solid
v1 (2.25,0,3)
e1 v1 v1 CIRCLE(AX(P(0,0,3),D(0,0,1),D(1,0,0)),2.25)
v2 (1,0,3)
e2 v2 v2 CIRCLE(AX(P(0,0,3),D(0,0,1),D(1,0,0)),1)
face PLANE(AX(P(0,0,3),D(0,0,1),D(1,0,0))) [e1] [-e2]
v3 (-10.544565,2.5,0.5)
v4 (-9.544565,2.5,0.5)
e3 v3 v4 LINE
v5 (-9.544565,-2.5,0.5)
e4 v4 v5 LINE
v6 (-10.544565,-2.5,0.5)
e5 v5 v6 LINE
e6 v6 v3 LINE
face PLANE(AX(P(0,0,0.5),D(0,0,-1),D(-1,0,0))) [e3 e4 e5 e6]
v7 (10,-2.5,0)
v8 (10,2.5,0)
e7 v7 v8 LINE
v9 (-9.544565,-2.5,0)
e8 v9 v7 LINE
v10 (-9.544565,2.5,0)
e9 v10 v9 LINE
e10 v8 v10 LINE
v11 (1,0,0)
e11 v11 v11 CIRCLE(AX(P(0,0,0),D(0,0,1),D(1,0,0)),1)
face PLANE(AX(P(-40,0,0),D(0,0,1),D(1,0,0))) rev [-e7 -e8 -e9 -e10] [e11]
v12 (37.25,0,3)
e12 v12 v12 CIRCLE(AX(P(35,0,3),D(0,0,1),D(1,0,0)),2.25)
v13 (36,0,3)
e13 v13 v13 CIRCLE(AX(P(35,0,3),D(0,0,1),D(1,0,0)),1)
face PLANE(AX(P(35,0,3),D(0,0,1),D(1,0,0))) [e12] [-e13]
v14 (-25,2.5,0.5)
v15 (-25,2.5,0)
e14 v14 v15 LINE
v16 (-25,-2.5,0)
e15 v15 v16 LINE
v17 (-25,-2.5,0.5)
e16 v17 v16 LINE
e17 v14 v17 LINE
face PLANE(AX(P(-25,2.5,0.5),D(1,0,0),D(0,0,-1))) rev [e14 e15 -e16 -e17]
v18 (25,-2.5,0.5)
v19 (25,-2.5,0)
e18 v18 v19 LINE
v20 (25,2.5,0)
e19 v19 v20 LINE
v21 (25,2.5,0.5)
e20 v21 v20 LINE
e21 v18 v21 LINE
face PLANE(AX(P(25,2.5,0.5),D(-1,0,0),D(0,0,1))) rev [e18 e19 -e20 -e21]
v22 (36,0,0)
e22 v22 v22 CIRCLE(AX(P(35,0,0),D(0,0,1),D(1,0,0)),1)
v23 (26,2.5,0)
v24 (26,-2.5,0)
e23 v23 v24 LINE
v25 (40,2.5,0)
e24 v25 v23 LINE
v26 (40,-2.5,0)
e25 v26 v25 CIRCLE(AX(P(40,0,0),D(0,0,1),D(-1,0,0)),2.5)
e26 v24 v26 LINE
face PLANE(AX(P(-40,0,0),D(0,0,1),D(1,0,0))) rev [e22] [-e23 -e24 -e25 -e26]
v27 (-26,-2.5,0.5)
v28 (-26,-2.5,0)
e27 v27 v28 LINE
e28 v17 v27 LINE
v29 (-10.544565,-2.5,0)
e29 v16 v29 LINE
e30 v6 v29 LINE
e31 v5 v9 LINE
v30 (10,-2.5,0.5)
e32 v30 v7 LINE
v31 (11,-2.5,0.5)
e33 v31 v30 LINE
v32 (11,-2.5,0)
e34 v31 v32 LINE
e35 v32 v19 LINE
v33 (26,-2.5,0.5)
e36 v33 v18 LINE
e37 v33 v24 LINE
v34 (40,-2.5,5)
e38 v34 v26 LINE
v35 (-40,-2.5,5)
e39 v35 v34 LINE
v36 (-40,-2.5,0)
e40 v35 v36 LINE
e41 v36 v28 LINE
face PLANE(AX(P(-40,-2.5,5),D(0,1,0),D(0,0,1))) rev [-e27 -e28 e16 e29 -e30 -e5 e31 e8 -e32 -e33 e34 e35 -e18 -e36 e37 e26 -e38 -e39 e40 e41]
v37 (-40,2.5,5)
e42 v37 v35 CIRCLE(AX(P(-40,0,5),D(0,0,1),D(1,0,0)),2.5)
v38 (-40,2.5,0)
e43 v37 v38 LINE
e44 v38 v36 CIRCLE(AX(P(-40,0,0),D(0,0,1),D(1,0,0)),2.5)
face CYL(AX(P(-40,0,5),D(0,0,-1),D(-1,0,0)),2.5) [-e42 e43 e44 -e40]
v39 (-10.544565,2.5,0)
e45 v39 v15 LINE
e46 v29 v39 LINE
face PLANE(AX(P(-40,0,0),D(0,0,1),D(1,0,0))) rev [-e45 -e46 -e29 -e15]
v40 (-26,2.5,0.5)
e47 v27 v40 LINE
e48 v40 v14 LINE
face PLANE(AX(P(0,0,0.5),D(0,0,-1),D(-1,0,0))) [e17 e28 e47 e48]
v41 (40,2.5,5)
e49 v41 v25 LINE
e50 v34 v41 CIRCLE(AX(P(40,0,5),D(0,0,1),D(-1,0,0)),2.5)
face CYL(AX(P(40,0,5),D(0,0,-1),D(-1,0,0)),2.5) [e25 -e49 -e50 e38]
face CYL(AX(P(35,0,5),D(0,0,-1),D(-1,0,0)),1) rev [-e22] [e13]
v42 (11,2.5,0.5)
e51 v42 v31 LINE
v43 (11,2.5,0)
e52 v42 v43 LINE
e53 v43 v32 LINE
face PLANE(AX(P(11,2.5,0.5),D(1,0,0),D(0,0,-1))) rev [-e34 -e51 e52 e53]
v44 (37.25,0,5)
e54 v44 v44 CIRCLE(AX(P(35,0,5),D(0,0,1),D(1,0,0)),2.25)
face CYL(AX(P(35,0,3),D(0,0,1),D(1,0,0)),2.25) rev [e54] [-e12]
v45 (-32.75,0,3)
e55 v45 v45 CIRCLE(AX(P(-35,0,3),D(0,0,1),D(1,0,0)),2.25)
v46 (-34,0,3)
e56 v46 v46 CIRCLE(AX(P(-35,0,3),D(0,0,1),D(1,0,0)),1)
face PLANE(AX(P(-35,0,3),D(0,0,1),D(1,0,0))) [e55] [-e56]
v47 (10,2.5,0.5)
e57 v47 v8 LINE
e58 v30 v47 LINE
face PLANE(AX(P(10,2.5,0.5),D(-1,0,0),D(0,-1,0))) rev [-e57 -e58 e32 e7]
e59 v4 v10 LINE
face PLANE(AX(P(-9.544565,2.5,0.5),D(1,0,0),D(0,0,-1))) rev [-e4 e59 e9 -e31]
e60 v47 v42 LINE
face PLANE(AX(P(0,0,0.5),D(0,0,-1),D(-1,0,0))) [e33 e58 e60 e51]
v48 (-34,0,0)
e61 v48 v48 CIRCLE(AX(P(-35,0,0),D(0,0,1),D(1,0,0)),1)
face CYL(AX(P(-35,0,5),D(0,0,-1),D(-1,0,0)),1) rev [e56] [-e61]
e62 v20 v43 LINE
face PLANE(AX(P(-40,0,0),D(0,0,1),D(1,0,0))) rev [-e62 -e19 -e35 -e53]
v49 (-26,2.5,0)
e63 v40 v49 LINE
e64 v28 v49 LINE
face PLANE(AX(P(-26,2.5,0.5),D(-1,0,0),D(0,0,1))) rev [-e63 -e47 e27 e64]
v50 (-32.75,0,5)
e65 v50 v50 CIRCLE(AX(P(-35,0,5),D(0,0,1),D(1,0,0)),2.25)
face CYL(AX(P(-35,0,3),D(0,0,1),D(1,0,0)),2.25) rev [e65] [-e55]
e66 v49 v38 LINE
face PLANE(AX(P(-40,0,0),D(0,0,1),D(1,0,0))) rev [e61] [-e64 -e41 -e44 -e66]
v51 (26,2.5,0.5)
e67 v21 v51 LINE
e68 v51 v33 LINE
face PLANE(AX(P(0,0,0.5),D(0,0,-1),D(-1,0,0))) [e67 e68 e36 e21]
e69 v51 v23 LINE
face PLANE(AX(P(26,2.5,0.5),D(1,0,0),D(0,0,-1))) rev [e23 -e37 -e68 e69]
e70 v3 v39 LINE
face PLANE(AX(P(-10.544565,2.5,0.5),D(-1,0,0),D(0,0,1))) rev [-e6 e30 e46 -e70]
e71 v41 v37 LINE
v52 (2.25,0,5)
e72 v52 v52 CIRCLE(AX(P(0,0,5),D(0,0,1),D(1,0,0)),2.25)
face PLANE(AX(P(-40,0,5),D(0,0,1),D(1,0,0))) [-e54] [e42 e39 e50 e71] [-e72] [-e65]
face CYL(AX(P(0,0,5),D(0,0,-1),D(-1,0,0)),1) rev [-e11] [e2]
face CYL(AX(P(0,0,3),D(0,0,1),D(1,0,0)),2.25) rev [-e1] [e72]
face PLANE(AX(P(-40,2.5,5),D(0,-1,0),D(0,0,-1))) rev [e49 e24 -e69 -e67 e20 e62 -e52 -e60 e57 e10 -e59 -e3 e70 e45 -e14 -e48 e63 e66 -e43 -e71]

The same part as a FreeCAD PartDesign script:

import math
import FreeCAD as App
import Part
import Sketcher
from FreeCAD import Vector
Q = App.Units.Quantity


def add_polygon(sketch, points):
    """Adds a closed chain of lines whose ends are joined by coincident constraints."""
    first, n = sketch.GeometryCount, len(points)
    for a, b in zip(points, points[1:] + points[:1]):
        sketch.addGeometry(Part.LineSegment(App.Vector(*a, 0), App.Vector(*b, 0)), False)
    for i in range(n):
        sketch.addConstraint(Sketcher.Constraint("Coincident", first + i, 2, first + (i + 1) % n, 1))

doc = App.newDocument("Part")
body = doc.addObject("PartDesign::Body", "Body")

# Sketch on XY plane
sketch1 = body.newObject("Sketcher::SketchObject", "Sketch")
sketch1.AttachmentSupport = (doc.getObject("XY_Plane"), [""])
sketch1.MapMode = "FlatFace"
sketch1.addGeometry(Part.LineSegment(Vector(40, 2.5, 0), Vector(-40, 2.5, 0)), False)
sketch1.addGeometry(Part.ArcOfCircle(Part.Circle(Vector(-40, 0, 0), Vector(0, 0, 1), 2.5), math.radians(90), math.radians(270)), False)
sketch1.addGeometry(Part.LineSegment(Vector(-40, -2.5, 0), Vector(40, -2.5, 0)), False)
sketch1.addGeometry(Part.ArcOfCircle(Part.Circle(Vector(40, 0, 0), Vector(0, 0, 1), 2.5), math.radians(-90.000002), math.radians(90.000002)), False)
sketch1.addGeometry(Part.Circle(Vector(35, 0, 0), Vector(0, 0, 1), 1), False)
sketch1.addGeometry(Part.Circle(Vector(0, 0, 0), Vector(0, 0, 1), 1), False)
sketch1.addGeometry(Part.Circle(Vector(-35, 0, 0), Vector(0, 0, 1), 1), False)
sketch1.addConstraint(Sketcher.Constraint("Tangent", 0, 2, 1, 1))
sketch1.addConstraint(Sketcher.Constraint("Tangent", 1, 2, 2, 1))
sketch1.addConstraint(Sketcher.Constraint("Tangent", 2, 2, 3, 1))
sketch1.addConstraint(Sketcher.Constraint("Tangent", 3, 2, 0, 1))
sketch1.addConstraint(Sketcher.Constraint("Horizontal", 0))
sketch1.addConstraint(Sketcher.Constraint("Horizontal", 2))
sketch1.addConstraint(Sketcher.Constraint("Coincident", 5, 3, -1, 1))
sketch1.addConstraint(Sketcher.Constraint("Equal", 4, 5))
sketch1.addConstraint(Sketcher.Constraint("Equal", 5, 6))
sketch1.addConstraint(Sketcher.Constraint("Symmetric", 1, 3, 3, 3, -1, 1))
sketch1.addConstraint(Sketcher.Constraint("Symmetric", 4, 3, 6, 3, -1, 1))
sketch1.addConstraint(Sketcher.Constraint("PointOnObject", 4, 3, -1))
sketch1.addConstraint(Sketcher.Constraint("Diameter", 4, Q("2 mm")))
sketch1.addConstraint(Sketcher.Constraint("Radius", 1, Q("2.5 mm")))
sketch1.addConstraint(Sketcher.Constraint("DistanceX", 0, 2, 0, 1, Q("80 mm")))
sketch1.addConstraint(Sketcher.Constraint("DistanceX", -1, 1, 4, 3, Q("35 mm")))
pad1 = body.newObject("PartDesign::Pad", "Pad")
pad1.Profile = sketch1
pad1.Length = 5

# Sketch on XY plane
sketch2 = body.newObject("Sketcher::SketchObject", "Sketch001")
sketch2.AttachmentSupport = (doc.getObject("XY_Plane"), [""])
sketch2.MapMode = "FlatFace"
add_polygon(sketch2, [(26, 2.5), (26, -2.5), (25, -2.5), (25, 2.5)])  # lines 0-3
add_polygon(sketch2, [(11, 2.5), (11, -2.5), (10, -2.5), (10, 2.5)])  # lines 4-7
add_polygon(sketch2, [(-9.544565, 2.5), (-9.544565, -2.5), (-10.544565, -2.5), (-10.544565, 2.5)])  # lines 8-11
add_polygon(sketch2, [(-25, 2.5), (-25, -2.5), (-26, -2.5), (-26, 2.5)])  # lines 12-15
sketch2.addConstraint(Sketcher.Constraint("Vertical", 0))
sketch2.addConstraint(Sketcher.Constraint("Horizontal", 1))
sketch2.addConstraint(Sketcher.Constraint("Vertical", 2))
sketch2.addConstraint(Sketcher.Constraint("Horizontal", 3))
sketch2.addConstraint(Sketcher.Constraint("Vertical", 4))
sketch2.addConstraint(Sketcher.Constraint("Horizontal", 5))
sketch2.addConstraint(Sketcher.Constraint("Vertical", 6))
sketch2.addConstraint(Sketcher.Constraint("Horizontal", 7))
sketch2.addConstraint(Sketcher.Constraint("Vertical", 8))
sketch2.addConstraint(Sketcher.Constraint("Horizontal", 9))
sketch2.addConstraint(Sketcher.Constraint("Vertical", 10))
sketch2.addConstraint(Sketcher.Constraint("Horizontal", 11))
sketch2.addConstraint(Sketcher.Constraint("Vertical", 12))
sketch2.addConstraint(Sketcher.Constraint("Horizontal", 13))
sketch2.addConstraint(Sketcher.Constraint("Vertical", 14))
sketch2.addConstraint(Sketcher.Constraint("Horizontal", 15))
sketch2.addConstraint(Sketcher.Constraint("Symmetric", 2, 2, 12, 2, -1, 1))
sketch2.addConstraint(Sketcher.Constraint("Symmetric", 0, 2, 14, 2, -1, 1))
sketch2.addConstraint(Sketcher.Constraint("Horizontal", 1, 2, 4, 2))
sketch2.addConstraint(Sketcher.Constraint("Horizontal", 3, 2, 6, 2))
sketch2.addConstraint(Sketcher.Constraint("Horizontal", 5, 2, 8, 2))
sketch2.addConstraint(Sketcher.Constraint("Horizontal", 7, 2, 10, 2))
sketch2.addConstraint(Sketcher.Constraint("Horizontal", 9, 2, 12, 2))
sketch2.addConstraint(Sketcher.Constraint("Equal", 3, 5))
sketch2.addConstraint(Sketcher.Constraint("Equal", 7, 9))
sketch2.addConstraint(Sketcher.Constraint("DistanceX", 1, 2, 1, 1, Q("1 mm")))
sketch2.addConstraint(Sketcher.Constraint("DistanceY", 0, 2, 0, 1, Q("5 mm")))
sketch2.addConstraint(Sketcher.Constraint("DistanceX", -1, 1, 0, 2, Q("26 mm")))
sketch2.addConstraint(Sketcher.Constraint("DistanceX", -1, 1, 4, 2, Q("11 mm")))
sketch2.addConstraint(Sketcher.Constraint("DistanceX", 8, 2, -1, 1, Q("9.544565 mm")))
pocket1 = body.newObject("PartDesign::Pocket", "Pocket")
pocket1.Profile = sketch2
pocket1.Length = 0.5
pocket1.Reversed = True

# Sketch on XY plane
sketch3 = body.newObject("Sketcher::SketchObject", "Sketch002")
sketch3.AttachmentSupport = (doc.getObject("XY_Plane"), [""])
sketch3.MapMode = "FlatFace"
sketch3.AttachmentOffset = App.Placement(Vector(0, 0, 5), App.Rotation())
sketch3.addGeometry(Part.Circle(Vector(-35, 0, 0), Vector(0, 0, 1), 2.25), False)
sketch3.addGeometry(Part.Circle(Vector(0, 0, 0), Vector(0, 0, 1), 2.25), False)
sketch3.addGeometry(Part.Circle(Vector(35, 0, 0), Vector(0, 0, 1), 2.25), False)
sketch3.addConstraint(Sketcher.Constraint("Coincident", 1, 3, -1, 1))
sketch3.addConstraint(Sketcher.Constraint("Equal", 0, 1))
sketch3.addConstraint(Sketcher.Constraint("Equal", 1, 2))
sketch3.addConstraint(Sketcher.Constraint("Symmetric", 0, 3, 2, 3, -1, 1))
sketch3.addConstraint(Sketcher.Constraint("PointOnObject", 0, 3, -1))
sketch3.addConstraint(Sketcher.Constraint("Diameter", 0, Q("4.5 mm")))
sketch3.addConstraint(Sketcher.Constraint("DistanceX", 0, 3, -1, 1, Q("35 mm")))
pocket2 = body.newObject("PartDesign::Pocket", "Pocket001")
pocket2.Profile = sketch3
pocket2.Length = 2

doc.recompute()
